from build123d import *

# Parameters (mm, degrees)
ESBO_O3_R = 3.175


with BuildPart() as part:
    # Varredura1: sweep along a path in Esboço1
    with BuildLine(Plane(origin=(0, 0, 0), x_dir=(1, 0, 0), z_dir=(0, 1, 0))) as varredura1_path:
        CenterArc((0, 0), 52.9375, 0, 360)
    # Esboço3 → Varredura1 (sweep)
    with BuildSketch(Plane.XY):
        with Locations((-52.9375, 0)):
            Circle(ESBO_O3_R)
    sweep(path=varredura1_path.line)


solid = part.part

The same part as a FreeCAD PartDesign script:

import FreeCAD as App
import Part
import Sketcher
from FreeCAD import Vector
Q = App.Units.Quantity

doc = App.newDocument("Part")
params = doc.addObject("Spreadsheet::Sheet", "Params")
for row, (alias, value) in enumerate([
    ("sketch1_diameter", "0.25 in"),
], start=1):
    params.set(f"A{row}", alias)
    params.set(f"B{row}", "=" + value)
    params.setAlias(f"B{row}", alias)

body = doc.addObject("PartDesign::Body", "Body")

# Sketch on XY plane
sketch1 = body.newObject("Sketcher::SketchObject", "Sketch")
sketch1.AttachmentSupport = (doc.getObject("XY_Plane"), [""])
sketch1.MapMode = "FlatFace"
sketch1.addGeometry(Part.Circle(Vector(-52.9375, 0, 0), Vector(0, 0, 1), 3.175), False)
sketch1.addConstraint([
    Sketcher.Constraint("PointOnObject", 0, 3, -1),
    Sketcher.Constraint("Diameter", 0, Q("0.25 in")),
    Sketcher.Constraint("DistanceX", 0, 3, -1, 1, Q("52.9375 mm")),
])
sketch1.setExpression("Constraints[1]", "Params.sketch1_diameter")

# Sketch on XZ plane
sketch2 = body.newObject("Sketcher::SketchObject", "Sketch001")
sketch2.AttachmentSupport = (doc.getObject("XZ_Plane"), [""])
sketch2.MapMode = "FlatFace"
sketch2.addGeometry(Part.Circle(Vector(0, 0, 0), Vector(0, 0, 1), 52.9375), False)
sketch2.addConstraint([
    Sketcher.Constraint("Coincident", 0, 3, -1, 1),
    Sketcher.Constraint("Diameter", 0, Q("105.875 mm")),
])
doc.recompute()

additivepipe = body.newObject("PartDesign::AdditivePipe", "AdditivePipe")
additivepipe.Profile = sketch1
additivepipe.Spine = (sketch2, ["Edge1"])

doc.recompute()
